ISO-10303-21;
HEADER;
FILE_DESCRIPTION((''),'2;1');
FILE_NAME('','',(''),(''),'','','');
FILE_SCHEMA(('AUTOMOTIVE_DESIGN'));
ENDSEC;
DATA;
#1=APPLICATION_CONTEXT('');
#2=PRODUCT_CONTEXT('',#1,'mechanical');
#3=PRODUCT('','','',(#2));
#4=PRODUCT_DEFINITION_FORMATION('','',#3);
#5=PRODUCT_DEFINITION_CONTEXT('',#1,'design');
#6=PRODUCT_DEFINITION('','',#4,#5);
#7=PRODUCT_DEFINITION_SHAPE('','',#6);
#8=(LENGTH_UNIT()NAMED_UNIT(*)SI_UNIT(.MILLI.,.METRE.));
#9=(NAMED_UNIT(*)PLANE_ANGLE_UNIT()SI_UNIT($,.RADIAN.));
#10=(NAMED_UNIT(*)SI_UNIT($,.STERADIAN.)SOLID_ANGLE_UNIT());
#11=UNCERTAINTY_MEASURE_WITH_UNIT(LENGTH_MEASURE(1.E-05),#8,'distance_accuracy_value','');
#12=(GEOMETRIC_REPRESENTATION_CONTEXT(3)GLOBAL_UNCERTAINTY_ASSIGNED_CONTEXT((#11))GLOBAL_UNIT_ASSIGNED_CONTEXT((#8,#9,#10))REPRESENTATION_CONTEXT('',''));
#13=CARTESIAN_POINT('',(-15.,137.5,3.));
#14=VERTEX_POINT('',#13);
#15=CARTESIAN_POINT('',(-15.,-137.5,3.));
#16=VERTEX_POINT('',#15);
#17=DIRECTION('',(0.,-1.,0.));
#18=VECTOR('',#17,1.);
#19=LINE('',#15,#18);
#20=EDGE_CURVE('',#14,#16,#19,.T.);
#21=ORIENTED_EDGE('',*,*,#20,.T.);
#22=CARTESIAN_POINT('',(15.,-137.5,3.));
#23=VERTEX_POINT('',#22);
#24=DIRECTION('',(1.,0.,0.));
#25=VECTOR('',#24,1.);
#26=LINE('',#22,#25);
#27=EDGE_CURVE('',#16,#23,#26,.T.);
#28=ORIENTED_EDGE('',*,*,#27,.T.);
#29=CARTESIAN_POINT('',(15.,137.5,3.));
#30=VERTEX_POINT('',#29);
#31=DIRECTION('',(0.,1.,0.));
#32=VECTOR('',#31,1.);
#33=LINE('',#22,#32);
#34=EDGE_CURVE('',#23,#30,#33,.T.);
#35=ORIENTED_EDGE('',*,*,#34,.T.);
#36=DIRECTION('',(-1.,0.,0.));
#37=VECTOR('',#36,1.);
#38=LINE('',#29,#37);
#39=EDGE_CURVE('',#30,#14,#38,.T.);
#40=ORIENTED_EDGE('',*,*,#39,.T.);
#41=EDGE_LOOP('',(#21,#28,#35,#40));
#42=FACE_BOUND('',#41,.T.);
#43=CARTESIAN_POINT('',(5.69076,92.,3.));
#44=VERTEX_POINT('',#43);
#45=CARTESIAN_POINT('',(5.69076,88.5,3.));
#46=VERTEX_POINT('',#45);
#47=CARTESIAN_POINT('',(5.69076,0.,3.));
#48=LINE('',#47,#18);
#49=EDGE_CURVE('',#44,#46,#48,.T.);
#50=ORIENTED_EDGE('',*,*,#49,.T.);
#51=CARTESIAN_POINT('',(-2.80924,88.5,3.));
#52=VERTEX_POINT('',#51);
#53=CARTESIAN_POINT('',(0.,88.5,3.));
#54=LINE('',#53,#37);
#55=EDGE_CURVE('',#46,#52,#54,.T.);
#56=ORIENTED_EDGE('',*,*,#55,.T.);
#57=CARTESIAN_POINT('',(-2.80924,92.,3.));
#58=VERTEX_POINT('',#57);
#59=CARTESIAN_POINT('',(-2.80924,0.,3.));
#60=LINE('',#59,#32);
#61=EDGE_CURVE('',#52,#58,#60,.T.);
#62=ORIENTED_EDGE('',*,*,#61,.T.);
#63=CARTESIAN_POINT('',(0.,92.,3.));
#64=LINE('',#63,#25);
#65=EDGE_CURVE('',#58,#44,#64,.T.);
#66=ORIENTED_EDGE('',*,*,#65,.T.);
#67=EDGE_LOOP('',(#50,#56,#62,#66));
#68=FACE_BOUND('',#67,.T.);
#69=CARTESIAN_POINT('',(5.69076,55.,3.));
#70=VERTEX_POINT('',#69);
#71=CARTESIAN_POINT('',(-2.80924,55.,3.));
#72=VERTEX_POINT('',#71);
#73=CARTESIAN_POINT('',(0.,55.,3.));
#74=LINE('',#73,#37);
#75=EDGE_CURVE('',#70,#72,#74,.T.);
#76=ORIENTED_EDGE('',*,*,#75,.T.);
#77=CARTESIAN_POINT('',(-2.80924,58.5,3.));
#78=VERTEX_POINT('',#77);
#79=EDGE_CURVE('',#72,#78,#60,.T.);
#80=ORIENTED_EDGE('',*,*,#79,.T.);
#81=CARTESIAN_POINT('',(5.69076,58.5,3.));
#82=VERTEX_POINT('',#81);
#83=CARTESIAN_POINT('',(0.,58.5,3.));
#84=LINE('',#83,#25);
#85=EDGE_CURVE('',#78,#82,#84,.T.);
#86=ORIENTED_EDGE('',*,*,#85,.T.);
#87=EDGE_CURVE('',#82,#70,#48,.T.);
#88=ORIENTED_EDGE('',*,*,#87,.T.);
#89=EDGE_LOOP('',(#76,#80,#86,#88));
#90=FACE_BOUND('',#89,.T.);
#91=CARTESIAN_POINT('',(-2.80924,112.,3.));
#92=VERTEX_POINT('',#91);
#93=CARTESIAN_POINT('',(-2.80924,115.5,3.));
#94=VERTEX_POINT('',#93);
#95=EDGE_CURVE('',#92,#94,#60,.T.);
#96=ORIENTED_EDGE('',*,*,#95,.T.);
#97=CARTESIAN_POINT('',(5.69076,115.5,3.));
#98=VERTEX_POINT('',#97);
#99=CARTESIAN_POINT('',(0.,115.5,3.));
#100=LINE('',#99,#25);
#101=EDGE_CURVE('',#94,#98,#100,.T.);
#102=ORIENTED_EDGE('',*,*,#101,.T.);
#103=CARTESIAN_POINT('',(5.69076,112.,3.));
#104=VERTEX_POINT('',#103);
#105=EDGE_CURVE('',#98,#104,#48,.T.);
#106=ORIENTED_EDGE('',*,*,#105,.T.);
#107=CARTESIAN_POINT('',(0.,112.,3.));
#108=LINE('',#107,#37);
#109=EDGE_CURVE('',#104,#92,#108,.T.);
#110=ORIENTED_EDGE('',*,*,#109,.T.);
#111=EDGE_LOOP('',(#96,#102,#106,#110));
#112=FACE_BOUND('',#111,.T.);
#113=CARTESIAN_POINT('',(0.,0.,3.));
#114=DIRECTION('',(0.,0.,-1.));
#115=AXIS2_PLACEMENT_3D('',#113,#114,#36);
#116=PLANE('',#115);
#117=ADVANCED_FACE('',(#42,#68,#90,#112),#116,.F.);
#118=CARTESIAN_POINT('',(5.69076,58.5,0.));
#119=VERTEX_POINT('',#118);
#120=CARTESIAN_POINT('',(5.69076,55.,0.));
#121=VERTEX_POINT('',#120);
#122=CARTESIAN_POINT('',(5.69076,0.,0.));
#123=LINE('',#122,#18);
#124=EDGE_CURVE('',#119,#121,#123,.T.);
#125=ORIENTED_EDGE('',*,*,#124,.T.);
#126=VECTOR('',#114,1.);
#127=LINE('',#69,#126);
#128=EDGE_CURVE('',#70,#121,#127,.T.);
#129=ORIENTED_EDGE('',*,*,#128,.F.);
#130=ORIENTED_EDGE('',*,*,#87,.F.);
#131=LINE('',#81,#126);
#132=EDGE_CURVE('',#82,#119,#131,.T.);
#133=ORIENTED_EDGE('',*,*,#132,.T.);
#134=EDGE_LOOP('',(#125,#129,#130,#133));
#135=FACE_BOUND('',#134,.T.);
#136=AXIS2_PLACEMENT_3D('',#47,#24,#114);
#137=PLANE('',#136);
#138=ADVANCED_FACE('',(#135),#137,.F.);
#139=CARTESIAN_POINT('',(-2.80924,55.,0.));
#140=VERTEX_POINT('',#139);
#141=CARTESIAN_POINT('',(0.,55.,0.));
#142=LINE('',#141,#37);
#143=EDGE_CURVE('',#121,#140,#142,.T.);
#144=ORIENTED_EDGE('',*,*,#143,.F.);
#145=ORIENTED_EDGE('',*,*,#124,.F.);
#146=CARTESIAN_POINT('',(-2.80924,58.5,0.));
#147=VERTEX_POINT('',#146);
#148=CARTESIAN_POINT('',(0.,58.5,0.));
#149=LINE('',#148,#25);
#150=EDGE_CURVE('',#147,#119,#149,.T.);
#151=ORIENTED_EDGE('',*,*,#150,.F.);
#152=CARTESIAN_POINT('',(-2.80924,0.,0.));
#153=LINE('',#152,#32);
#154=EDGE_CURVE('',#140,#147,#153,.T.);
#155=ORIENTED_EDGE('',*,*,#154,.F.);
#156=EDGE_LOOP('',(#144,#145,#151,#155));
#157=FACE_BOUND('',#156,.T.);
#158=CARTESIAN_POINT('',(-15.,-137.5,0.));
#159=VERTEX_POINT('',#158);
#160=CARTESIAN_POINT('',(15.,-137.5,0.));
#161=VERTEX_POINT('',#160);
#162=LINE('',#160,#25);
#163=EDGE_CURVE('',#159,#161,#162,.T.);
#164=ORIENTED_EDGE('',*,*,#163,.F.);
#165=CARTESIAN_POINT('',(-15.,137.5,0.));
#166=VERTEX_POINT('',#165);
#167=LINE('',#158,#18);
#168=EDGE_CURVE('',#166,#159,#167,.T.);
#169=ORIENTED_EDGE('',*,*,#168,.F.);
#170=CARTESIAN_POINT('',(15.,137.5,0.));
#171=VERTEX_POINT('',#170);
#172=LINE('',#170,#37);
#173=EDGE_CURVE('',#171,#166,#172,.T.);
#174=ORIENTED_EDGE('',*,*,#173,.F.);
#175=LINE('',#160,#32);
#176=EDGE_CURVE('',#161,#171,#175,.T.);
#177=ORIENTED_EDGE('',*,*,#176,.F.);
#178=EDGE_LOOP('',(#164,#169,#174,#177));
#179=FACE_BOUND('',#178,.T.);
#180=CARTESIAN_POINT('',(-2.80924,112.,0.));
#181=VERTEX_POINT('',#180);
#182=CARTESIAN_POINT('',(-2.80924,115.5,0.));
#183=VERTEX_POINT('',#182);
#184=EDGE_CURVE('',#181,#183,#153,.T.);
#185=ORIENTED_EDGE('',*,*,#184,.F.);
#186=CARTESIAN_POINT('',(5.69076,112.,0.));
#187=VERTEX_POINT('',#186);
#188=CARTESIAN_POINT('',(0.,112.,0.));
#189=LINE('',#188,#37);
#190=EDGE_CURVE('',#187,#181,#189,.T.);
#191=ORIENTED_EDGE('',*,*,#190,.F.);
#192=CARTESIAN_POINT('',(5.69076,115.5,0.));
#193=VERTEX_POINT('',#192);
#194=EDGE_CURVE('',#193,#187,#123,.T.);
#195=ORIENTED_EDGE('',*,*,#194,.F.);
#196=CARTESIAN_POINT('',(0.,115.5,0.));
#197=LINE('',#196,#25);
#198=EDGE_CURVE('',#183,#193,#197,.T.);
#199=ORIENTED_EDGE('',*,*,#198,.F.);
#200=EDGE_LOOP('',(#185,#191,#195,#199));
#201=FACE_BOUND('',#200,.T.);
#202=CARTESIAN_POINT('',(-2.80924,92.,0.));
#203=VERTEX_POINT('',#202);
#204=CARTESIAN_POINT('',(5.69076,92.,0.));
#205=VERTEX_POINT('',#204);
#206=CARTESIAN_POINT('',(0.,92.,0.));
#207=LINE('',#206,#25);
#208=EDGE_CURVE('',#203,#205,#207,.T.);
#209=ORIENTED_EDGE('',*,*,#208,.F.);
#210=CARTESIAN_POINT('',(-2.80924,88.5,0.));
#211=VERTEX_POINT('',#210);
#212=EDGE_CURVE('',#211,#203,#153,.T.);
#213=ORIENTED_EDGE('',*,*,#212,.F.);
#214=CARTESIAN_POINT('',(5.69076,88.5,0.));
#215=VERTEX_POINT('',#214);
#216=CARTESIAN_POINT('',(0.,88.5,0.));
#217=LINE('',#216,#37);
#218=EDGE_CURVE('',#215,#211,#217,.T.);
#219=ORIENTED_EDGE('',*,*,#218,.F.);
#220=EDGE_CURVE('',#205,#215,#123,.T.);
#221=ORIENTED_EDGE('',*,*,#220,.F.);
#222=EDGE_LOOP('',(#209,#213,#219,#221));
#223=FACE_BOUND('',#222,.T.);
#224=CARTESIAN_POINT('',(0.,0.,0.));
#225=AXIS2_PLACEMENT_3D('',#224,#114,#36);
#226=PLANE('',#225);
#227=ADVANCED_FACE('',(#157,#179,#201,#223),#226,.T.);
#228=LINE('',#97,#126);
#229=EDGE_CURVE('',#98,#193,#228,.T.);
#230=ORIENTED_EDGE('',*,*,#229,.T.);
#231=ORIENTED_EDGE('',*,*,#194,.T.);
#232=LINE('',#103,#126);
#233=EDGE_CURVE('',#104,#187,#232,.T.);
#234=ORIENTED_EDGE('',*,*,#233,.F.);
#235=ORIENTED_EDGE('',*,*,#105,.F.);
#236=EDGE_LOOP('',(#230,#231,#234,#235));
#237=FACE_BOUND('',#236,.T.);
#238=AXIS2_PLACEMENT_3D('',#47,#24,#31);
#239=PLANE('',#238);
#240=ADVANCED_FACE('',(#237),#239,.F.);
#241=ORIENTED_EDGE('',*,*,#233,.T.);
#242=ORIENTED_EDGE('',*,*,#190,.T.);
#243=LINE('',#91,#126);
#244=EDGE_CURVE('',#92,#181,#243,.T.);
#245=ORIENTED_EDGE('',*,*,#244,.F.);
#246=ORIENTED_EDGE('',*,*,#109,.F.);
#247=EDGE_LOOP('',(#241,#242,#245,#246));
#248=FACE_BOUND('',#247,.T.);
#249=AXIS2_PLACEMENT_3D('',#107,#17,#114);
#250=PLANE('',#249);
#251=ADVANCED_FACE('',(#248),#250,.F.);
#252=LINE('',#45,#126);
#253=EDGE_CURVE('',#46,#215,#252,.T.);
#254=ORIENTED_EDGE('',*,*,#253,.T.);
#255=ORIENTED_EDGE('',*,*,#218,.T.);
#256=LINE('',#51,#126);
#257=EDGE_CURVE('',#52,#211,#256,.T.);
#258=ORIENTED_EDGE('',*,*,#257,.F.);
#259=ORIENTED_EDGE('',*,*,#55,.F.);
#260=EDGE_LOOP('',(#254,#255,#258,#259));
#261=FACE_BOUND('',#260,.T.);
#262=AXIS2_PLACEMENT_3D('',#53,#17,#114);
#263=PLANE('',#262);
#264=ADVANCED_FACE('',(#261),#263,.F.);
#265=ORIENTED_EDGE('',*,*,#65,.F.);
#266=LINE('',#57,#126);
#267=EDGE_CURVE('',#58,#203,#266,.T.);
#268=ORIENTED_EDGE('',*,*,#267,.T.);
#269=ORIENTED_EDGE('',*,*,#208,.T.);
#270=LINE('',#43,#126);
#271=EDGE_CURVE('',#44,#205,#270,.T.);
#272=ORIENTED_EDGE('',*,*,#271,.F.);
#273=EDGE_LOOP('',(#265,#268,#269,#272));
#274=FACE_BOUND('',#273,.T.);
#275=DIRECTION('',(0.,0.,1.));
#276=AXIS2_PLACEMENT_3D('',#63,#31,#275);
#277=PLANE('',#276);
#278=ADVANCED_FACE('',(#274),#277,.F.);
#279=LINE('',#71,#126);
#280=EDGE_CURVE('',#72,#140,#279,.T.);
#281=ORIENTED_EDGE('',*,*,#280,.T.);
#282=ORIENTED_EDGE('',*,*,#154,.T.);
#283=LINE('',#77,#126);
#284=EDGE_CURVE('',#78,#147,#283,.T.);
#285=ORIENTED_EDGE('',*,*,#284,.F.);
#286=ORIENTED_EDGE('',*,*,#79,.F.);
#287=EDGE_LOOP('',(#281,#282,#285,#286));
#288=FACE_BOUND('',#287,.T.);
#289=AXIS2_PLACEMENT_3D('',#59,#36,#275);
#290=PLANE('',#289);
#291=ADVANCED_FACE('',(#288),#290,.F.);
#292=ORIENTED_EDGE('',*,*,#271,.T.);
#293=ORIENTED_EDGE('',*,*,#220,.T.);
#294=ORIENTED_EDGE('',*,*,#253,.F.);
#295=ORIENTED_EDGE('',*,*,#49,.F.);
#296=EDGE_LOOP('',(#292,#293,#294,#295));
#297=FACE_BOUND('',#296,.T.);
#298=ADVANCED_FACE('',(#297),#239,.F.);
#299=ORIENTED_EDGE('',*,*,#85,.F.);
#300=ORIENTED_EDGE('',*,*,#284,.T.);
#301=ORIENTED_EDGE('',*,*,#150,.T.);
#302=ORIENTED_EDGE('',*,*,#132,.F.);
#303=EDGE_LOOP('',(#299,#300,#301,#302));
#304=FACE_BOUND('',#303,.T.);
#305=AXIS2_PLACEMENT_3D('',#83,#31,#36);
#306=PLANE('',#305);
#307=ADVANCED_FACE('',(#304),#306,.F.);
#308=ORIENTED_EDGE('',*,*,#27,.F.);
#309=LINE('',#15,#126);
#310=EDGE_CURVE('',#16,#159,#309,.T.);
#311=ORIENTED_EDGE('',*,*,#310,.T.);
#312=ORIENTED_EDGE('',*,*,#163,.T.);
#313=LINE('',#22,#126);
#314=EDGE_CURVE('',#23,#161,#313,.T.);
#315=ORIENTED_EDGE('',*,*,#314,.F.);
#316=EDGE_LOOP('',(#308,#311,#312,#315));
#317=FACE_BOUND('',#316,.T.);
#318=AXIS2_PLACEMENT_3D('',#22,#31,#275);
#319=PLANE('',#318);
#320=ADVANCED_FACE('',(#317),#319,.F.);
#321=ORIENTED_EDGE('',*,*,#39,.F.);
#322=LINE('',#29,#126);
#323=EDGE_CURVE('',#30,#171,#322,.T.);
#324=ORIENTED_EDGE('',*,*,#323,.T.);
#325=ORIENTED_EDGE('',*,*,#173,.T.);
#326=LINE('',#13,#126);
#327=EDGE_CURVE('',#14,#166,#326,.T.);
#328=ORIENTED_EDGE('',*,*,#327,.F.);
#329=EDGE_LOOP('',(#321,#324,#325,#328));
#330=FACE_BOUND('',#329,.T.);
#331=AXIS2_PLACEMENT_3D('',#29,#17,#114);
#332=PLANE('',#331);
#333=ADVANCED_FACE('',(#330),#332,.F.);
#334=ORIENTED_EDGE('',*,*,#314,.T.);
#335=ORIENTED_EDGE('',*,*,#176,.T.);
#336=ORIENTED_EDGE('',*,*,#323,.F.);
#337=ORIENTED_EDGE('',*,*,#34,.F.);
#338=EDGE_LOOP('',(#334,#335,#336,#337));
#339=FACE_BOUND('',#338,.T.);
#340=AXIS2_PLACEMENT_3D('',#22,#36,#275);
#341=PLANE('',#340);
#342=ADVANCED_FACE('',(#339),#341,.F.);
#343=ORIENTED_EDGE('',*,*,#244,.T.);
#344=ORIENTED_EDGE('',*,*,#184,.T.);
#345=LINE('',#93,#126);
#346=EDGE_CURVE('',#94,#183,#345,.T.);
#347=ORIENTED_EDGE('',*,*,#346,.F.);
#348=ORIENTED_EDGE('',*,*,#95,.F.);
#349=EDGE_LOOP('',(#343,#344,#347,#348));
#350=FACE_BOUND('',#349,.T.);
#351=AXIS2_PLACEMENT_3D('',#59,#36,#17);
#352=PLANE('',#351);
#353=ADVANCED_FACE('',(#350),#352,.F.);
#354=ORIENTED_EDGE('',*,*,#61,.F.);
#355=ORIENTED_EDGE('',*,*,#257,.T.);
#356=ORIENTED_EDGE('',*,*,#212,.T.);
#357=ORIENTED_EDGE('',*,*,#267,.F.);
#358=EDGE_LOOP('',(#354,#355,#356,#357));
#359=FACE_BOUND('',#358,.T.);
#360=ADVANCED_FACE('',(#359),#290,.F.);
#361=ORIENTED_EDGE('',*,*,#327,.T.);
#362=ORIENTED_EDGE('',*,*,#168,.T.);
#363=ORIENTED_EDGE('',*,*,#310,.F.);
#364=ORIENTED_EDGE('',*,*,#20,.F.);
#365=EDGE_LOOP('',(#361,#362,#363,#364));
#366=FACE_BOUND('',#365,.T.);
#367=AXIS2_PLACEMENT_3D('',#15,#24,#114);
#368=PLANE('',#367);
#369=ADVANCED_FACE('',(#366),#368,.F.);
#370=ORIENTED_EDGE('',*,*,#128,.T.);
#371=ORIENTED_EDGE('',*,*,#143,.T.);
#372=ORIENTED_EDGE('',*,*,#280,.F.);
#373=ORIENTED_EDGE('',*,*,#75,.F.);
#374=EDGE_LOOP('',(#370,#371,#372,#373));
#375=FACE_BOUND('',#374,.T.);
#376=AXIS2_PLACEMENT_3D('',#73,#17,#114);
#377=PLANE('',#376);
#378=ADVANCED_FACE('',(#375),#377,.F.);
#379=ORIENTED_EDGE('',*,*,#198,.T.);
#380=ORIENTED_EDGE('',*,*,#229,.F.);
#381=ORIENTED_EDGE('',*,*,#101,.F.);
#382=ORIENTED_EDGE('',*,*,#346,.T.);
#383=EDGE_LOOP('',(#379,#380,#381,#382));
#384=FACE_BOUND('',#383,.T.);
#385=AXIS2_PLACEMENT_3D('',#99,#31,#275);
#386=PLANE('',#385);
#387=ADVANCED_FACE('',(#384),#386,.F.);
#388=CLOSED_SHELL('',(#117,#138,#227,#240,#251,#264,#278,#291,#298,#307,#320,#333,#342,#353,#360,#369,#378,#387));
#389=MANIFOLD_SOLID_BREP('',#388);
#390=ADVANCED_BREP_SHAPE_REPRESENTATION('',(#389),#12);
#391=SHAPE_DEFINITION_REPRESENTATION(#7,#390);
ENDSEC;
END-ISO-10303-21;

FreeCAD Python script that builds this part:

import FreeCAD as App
import Part
import Sketcher

V = App.Vector


def add_polygon(sketch, points):
    """Adds a closed chain of lines whose ends are joined by coincident constraints."""
    first, n = sketch.GeometryCount, len(points)
    for a, b in zip(points, points[1:] + points[:1]):
        sketch.addGeometry(Part.LineSegment(App.Vector(*a, 0), App.Vector(*b, 0)), False)
    for i in range(n):
        sketch.addConstraint(Sketcher.Constraint("Coincident", first + i, 2, first + (i + 1) % n, 1))

doc = App.newDocument("Part")
body = doc.addObject("PartDesign::Body", "Body")

# Sketch on XY plane
sketch1 = body.newObject("Sketcher::SketchObject", "Sketch")
sketch1.AttachmentSupport = (doc.getObject("XY_Plane"), [""])
sketch1.MapMode = "FlatFace"
add_polygon(sketch1, [(-15, -138), (15, -138), (15, 138), (-15, 138)])  # lines 0-3
sketch1.addConstraint([
    Sketcher.Constraint("Horizontal", 0),
    Sketcher.Constraint("Vertical", 1),
    Sketcher.Constraint("Horizontal", 2),
    Sketcher.Constraint("Vertical", 3),
    Sketcher.Constraint("Symmetric", 0, 2, 2, 2, -1, 1),
    Sketcher.Constraint("DistanceX", 0, 1, 0, 2, 30.0),
    Sketcher.Constraint("DistanceY", 1, 1, 1, 2, 275.0),
])
pad1 = body.newObject("PartDesign::Pad", "Pad")
pad1.Profile = sketch1
pad1.Length = 3

# Sketch on XY plane
sketch2 = body.newObject("Sketcher::SketchObject", "Sketch001")
sketch2.AttachmentSupport = (doc.getObject("XY_Plane"), [""])
sketch2.MapMode = "FlatFace"
add_polygon(sketch2, [(-2.8, 88.5), (-2.8, 92), (5.7, 92), (5.7, 88.5)])  # lines 0-3
add_polygon(sketch2, [(-2.8, 112), (-2.8, 115.5), (5.7, 115.5), (5.7, 112)])  # lines 4-7
add_polygon(sketch2, [(-2.8, 55), (-2.8, 58.5), (5.7, 58.5), (5.7, 55)])  # lines 8-11
sketch2.addConstraint([
    Sketcher.Constraint("Vertical", 0),
    Sketcher.Constraint("Horizontal", 1),
    Sketcher.Constraint("Vertical", 2),
    Sketcher.Constraint("Horizontal", 3),
    Sketcher.Constraint("Vertical", 4),
    Sketcher.Constraint("Horizontal", 5),
    Sketcher.Constraint("Vertical", 6),
    Sketcher.Constraint("Horizontal", 7),
    Sketcher.Constraint("Vertical", 8),
    Sketcher.Constraint("Horizontal", 9),
    Sketcher.Constraint("Vertical", 10),
    Sketcher.Constraint("Horizontal", 11),
    Sketcher.Constraint("Vertical", 3, 2, 4, 2),
    Sketcher.Constraint("Vertical", 2, 2, 5, 2),
    Sketcher.Constraint("Vertical", 7, 2, 8, 2),
    Sketcher.Constraint("Vertical", 6, 2, 9, 2),
    Sketcher.Constraint("Equal", 2, 4),
    Sketcher.Constraint("Equal", 6, 8),
    Sketcher.Constraint("DistanceX", 1, 1, 1, 2, 8.5),
    Sketcher.Constraint("DistanceY", 0, 1, 0, 2, 3.5),
    Sketcher.Constraint("DistanceY", -1, 1, 0, 2, 92.0),
    Sketcher.Constraint("DistanceY", -1, 1, 6, 2, 112.0),
    Sketcher.Constraint("DistanceY", -1, 1, 10, 2, 55.0),
    Sketcher.Constraint("DistanceX", 0, 2, -1, 1, 2.80924),
])
pocket1 = body.newObject("PartDesign::Pocket", "Pocket")
pocket1.Profile = sketch2
pocket1.Type = "ThroughAll"
pocket1.Reversed = True

doc.recompute()
